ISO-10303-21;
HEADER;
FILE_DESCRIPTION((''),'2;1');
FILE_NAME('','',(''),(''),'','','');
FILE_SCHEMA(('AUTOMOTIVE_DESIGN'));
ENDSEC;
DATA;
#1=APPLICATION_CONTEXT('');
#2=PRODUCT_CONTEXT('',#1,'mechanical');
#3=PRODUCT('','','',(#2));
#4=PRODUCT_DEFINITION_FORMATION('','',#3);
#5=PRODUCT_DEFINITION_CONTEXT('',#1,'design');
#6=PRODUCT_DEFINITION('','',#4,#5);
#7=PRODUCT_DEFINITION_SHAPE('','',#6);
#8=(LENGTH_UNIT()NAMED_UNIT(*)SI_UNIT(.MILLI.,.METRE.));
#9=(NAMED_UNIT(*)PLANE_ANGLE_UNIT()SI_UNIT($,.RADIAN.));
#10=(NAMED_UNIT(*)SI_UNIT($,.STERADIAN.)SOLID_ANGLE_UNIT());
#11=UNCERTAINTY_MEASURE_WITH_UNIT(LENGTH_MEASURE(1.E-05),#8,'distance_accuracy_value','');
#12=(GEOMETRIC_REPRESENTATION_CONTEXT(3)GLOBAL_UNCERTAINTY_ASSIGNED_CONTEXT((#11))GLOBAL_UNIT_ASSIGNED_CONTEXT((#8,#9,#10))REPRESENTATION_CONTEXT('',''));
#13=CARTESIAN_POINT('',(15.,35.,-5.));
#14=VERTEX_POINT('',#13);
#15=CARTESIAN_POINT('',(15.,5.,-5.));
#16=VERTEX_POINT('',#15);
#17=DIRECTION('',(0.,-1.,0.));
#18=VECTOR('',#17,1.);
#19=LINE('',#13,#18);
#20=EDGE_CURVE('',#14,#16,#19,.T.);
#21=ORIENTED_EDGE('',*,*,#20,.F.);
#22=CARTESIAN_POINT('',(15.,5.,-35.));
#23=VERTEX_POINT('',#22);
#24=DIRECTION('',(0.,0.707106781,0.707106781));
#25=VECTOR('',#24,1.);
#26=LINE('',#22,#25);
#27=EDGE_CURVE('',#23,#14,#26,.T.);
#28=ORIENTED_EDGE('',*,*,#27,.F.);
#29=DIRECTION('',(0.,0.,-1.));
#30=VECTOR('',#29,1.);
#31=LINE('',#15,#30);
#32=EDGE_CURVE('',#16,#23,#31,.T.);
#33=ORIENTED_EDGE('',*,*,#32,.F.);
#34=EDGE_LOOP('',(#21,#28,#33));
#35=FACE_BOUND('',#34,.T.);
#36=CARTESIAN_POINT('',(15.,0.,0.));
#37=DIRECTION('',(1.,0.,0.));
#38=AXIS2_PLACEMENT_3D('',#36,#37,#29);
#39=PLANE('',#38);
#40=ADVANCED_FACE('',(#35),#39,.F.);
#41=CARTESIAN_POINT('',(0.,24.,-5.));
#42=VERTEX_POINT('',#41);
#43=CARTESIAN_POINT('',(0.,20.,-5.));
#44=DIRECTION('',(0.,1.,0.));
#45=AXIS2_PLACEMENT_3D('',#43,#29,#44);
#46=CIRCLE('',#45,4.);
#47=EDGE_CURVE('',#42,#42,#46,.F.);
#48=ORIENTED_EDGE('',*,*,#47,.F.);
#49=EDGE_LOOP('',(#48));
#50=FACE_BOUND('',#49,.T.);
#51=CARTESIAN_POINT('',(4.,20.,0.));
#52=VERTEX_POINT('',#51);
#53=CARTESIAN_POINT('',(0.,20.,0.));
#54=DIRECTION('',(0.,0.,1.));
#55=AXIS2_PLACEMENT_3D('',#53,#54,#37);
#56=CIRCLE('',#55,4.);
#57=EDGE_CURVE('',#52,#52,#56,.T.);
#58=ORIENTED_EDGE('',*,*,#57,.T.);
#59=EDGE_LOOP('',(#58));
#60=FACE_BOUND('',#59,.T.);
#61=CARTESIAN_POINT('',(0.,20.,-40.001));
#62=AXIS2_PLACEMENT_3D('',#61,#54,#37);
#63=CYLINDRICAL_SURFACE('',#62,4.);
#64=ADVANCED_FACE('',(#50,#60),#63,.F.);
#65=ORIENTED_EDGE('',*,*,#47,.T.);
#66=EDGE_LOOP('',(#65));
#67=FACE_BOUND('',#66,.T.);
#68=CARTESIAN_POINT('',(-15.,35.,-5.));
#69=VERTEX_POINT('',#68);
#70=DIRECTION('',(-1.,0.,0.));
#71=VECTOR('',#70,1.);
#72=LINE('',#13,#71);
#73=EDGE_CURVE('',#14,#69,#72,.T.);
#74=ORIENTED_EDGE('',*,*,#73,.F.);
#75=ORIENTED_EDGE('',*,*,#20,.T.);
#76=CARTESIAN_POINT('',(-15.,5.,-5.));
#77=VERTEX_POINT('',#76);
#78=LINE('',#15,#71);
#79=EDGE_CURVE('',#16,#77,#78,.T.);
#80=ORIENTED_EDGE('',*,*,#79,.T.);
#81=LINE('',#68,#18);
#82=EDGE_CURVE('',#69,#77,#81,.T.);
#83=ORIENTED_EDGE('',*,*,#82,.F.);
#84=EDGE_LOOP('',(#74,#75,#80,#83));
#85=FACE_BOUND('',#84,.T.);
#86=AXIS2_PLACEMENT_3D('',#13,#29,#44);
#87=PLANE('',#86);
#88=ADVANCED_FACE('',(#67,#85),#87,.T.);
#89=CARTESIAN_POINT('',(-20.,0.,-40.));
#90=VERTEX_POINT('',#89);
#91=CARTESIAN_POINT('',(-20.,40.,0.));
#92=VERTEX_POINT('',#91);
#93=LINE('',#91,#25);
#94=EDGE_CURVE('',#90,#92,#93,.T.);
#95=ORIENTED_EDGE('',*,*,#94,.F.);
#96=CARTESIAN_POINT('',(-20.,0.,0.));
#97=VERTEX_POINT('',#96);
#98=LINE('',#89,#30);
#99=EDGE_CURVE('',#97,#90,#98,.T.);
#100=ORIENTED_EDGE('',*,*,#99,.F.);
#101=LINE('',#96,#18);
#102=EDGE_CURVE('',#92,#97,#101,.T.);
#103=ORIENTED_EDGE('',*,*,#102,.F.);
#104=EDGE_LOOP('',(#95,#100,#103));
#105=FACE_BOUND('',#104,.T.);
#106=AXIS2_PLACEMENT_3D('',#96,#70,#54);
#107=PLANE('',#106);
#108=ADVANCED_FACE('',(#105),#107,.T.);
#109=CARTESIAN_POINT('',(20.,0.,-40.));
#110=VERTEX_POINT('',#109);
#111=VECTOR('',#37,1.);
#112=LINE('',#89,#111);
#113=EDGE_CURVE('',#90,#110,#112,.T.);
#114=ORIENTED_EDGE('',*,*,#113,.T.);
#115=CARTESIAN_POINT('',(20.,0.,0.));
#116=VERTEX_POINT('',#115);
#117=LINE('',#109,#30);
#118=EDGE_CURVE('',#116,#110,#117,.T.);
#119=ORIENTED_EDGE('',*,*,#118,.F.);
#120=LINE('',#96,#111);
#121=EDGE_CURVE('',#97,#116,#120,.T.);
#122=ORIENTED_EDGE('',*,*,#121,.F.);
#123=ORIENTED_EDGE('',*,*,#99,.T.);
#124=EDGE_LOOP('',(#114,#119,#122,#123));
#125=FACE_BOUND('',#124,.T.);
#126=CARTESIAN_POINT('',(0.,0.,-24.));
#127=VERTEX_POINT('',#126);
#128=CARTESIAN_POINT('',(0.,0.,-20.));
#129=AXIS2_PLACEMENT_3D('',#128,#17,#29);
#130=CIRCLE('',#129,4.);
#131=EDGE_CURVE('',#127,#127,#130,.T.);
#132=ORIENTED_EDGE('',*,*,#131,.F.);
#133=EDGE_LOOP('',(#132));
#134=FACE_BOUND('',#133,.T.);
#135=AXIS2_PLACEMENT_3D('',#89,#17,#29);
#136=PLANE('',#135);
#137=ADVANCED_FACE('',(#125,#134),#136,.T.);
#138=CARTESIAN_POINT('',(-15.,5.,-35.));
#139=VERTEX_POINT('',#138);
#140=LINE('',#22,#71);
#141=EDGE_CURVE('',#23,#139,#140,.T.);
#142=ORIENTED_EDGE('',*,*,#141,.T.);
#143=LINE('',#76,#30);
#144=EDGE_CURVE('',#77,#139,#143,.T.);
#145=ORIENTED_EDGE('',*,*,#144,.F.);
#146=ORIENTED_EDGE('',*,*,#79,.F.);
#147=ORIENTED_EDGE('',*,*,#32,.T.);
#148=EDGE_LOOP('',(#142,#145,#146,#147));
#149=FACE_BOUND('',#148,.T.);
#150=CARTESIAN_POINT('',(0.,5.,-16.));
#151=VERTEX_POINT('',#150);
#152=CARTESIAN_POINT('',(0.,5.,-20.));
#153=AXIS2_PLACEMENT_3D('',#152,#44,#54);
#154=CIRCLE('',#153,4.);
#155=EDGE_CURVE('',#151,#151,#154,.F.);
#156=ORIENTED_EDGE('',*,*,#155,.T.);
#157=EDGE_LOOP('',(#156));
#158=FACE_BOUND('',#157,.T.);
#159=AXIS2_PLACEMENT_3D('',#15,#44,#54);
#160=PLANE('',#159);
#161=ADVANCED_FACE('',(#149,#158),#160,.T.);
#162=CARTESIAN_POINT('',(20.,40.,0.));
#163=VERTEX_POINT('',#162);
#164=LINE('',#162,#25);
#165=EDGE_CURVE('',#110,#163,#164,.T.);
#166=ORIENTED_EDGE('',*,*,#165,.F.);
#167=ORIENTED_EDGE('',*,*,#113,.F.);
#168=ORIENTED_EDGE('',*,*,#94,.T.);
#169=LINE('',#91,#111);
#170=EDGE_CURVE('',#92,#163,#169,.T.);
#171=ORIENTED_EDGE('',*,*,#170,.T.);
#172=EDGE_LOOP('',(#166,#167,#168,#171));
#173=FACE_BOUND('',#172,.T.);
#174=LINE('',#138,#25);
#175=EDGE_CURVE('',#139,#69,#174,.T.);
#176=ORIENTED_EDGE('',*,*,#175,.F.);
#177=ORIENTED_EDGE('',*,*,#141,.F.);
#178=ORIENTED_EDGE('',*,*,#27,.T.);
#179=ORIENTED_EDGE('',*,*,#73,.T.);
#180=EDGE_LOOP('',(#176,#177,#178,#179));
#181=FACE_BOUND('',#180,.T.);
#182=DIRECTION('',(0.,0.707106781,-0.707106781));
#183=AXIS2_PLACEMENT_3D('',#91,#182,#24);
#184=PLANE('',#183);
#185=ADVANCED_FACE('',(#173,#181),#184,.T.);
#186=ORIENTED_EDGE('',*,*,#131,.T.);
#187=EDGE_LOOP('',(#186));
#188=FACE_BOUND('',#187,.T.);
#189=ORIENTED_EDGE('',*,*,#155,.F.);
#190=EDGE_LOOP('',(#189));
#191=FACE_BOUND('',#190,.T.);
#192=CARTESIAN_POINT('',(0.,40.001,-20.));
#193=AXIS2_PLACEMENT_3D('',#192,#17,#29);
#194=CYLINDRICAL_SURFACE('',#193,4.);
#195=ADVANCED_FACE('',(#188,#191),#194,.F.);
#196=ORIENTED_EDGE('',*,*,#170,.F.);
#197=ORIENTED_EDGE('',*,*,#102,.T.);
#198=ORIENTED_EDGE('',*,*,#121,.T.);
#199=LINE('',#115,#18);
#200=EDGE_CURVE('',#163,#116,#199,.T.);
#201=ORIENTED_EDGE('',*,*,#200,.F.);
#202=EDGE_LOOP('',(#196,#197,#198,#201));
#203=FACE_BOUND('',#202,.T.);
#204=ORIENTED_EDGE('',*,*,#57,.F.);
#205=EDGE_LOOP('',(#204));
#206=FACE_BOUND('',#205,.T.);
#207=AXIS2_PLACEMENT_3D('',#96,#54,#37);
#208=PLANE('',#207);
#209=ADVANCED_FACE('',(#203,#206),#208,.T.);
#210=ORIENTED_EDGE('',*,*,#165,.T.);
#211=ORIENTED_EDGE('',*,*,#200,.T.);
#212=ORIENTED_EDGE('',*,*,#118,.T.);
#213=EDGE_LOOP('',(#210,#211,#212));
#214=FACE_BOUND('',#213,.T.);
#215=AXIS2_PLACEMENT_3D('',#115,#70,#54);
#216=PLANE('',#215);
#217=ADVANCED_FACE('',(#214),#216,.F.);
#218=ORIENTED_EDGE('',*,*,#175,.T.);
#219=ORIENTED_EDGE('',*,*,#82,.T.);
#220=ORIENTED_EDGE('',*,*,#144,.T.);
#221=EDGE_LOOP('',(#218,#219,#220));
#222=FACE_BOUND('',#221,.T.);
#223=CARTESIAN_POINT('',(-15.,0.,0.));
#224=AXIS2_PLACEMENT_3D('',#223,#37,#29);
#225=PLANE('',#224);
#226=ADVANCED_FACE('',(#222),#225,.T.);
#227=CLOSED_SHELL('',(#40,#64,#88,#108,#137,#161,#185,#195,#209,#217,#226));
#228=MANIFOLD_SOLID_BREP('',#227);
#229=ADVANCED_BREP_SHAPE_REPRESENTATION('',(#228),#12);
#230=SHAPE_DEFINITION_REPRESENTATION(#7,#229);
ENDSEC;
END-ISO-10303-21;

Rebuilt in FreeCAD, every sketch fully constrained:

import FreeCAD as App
import Part
import Sketcher
from FreeCAD import Vector
Q = App.Units.Quantity

doc = App.newDocument("Part")
body = doc.addObject("PartDesign::Body", "Body")

sketch1 = body.newObject("Sketcher::SketchObject", "Sketch")
sketch1.AttachmentSupport = (doc.getObject("YZ_Plane"), [""])
sketch1.MapMode = "FlatFace"
sketch1.addGeometry([
    Part.LineSegment(Vector(40, 0, 0), Vector(0, 0, 0)),
    Part.LineSegment(Vector(0, 0, 0), Vector(0, -40, 0)),
    Part.LineSegment(Vector(0, -40, 0), Vector(40, 0, 0)),
], False)
sketch1.addConstraint([
    Sketcher.Constraint("Coincident", 0, 2, 1, 1),
    Sketcher.Constraint("Coincident", 1, 2, 2, 1),
    Sketcher.Constraint("Coincident", 2, 2, 0, 1),
    Sketcher.Constraint("Horizontal", 0),
    Sketcher.Constraint("Vertical", 1),
    Sketcher.Constraint("Coincident", 0, 2, -1, 1),
    Sketcher.Constraint("Equal", 0, 1),
    Sketcher.Constraint("DistanceX", 0, 2, 0, 1, Q("40 mm")),
])
pad1 = body.newObject("PartDesign::Pad", "Pad")
pad1.Profile = sketch1
pad1.Type = "TwoLengths"
pad1.Length = 20
pad1.Length2 = 20

sketch2 = body.newObject("Sketcher::SketchObject", "Sketch001")
sketch2.AttachmentSupport = (doc.getObject("YZ_Plane"), [""])
sketch2.MapMode = "FlatFace"
sketch2.addGeometry([
    Part.LineSegment(Vector(35, -5, 0), Vector(5, -5, 0)),
    Part.LineSegment(Vector(5, -5, 0), Vector(5, -35, 0)),
    Part.LineSegment(Vector(5, -35, 0), Vector(35, -5, 0)),
], False)
sketch2.addConstraint([
    Sketcher.Constraint("Coincident", 0, 2, 1, 1),
    Sketcher.Constraint("Coincident", 1, 2, 2, 1),
    Sketcher.Constraint("Coincident", 2, 2, 0, 1),
    Sketcher.Constraint("Horizontal", 0),
    Sketcher.Constraint("Vertical", 1),
    Sketcher.Constraint("Equal", 0, 1),
    Sketcher.Constraint("DistanceX", 0, 2, 0, 1, Q("30 mm")),
    Sketcher.Constraint("DistanceX", -1, 1, 0, 2, Q("5 mm")),
    Sketcher.Constraint("DistanceY", 0, 2, -1, 1, Q("5 mm")),
])
pocket1 = body.newObject("PartDesign::Pocket", "Pocket")
pocket1.Profile = sketch2
pocket1.Type = "TwoLengths"
pocket1.Length = 15
pocket1.Length2 = 15
pocket1.Reversed = True

sketch3 = body.newObject("Sketcher::SketchObject", "Sketch002")
sketch3.AttachmentSupport = (doc.getObject("XY_Plane"), [""])
sketch3.MapMode = "FlatFace"
sketch3.addGeometry(Part.Circle(Vector(0, 20, 0), Vector(0, 0, 1), 4), False)
sketch3.addConstraint([
    Sketcher.Constraint("PointOnObject", 0, 3, -2),
    Sketcher.Constraint("Diameter", 0, Q("8 mm")),
    Sketcher.Constraint("DistanceY", -1, 1, 0, 3, Q("20 mm")),
])
pocket2 = body.newObject("PartDesign::Pocket", "Pocket001")
pocket2.Profile = sketch3
pocket2.Type = "UpToFirst"

sketch4 = body.newObject("Sketcher::SketchObject", "Sketch003")
sketch4.AttachmentSupport = (doc.getObject("XZ_Plane"), [""])
sketch4.MapMode = "FlatFace"
sketch4.addGeometry(Part.Circle(Vector(0, -20, 0), Vector(0, 0, 1), 4), False)
sketch4.addConstraint([
    Sketcher.Constraint("PointOnObject", 0, 3, -2),
    Sketcher.Constraint("Diameter", 0, Q("8 mm")),
    Sketcher.Constraint("DistanceY", 0, 3, -1, 1, Q("20 mm")),
])
pocket3 = body.newObject("PartDesign::Pocket", "Pocket002")
pocket3.Profile = sketch4
pocket3.Type = "UpToFirst"

doc.recompute()
